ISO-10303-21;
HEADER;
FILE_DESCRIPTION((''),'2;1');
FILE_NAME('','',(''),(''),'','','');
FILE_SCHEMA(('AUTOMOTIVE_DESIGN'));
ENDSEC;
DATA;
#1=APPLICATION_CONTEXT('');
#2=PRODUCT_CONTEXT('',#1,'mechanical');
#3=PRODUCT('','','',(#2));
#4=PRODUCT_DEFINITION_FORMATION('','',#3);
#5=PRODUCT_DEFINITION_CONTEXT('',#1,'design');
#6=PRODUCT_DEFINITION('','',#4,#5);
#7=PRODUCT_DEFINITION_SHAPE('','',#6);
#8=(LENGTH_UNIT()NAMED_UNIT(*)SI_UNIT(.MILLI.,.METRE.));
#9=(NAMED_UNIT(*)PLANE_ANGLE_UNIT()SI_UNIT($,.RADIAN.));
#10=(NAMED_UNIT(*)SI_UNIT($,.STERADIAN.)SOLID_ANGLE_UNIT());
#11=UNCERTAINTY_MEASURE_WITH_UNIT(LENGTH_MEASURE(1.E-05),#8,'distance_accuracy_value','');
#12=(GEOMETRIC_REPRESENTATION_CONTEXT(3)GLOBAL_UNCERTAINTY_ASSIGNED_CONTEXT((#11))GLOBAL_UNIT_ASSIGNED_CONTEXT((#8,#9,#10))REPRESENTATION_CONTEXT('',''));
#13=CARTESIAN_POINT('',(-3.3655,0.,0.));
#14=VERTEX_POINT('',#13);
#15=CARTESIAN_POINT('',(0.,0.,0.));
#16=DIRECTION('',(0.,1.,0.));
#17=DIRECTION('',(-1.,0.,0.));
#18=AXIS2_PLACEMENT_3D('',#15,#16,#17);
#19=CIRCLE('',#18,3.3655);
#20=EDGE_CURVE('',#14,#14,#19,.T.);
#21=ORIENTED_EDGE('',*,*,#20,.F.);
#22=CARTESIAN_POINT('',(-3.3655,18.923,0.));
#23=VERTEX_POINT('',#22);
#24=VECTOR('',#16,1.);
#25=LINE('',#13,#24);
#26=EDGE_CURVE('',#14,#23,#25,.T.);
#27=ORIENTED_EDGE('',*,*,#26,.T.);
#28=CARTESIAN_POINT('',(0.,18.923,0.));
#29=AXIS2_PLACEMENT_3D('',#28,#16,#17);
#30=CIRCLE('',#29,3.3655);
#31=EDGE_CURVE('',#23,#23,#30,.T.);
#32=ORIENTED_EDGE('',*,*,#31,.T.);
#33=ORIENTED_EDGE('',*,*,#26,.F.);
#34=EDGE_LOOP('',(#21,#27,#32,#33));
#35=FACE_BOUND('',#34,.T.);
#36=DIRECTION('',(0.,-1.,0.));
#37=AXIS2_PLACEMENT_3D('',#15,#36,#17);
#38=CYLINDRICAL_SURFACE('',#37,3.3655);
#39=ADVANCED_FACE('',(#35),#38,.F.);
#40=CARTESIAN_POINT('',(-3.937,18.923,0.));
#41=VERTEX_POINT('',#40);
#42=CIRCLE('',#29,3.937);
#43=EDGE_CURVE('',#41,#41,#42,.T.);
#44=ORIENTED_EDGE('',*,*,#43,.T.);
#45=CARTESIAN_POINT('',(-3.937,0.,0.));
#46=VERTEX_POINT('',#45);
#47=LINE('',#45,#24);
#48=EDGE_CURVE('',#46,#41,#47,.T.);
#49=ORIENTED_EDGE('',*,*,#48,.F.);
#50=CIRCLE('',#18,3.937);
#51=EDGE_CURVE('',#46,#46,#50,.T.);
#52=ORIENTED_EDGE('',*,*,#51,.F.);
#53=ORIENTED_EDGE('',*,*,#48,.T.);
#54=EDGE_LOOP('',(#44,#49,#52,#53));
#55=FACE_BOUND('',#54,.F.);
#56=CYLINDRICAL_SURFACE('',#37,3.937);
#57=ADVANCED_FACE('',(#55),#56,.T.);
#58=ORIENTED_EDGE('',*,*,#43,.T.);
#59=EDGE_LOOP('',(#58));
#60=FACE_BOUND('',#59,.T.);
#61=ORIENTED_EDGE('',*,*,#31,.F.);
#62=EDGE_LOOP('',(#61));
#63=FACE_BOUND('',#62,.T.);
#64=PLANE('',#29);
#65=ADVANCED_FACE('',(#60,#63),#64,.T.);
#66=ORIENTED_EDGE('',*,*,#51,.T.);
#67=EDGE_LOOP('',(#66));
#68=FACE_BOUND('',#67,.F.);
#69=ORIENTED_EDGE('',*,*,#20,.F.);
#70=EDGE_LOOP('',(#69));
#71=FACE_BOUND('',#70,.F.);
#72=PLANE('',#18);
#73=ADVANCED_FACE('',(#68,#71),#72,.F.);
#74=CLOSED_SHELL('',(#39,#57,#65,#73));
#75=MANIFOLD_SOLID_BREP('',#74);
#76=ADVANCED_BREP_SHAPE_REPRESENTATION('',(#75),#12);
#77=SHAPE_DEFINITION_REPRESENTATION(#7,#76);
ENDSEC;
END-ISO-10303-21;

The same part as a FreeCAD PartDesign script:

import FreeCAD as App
import Part
import Sketcher
from FreeCAD import Vector
Q = App.Units.Quantity

doc = App.newDocument("Part")
body = doc.addObject("PartDesign::Body", "Body")

# Sketch on XZ plane
sketch1 = body.newObject("Sketcher::SketchObject", "Sketch")
sketch1.AttachmentSupport = (doc.getObject("XZ_Plane"), [""])
sketch1.MapMode = "FlatFace"
sketch1.addGeometry(Part.Circle(Vector(0, 0, 0), Vector(0, 0, 1), 3.9), False)
sketch1.addGeometry(Part.Circle(Vector(0, 0, 0), Vector(0, 0, 1), 3.4), False)
sketch1.addConstraint(Sketcher.Constraint("Coincident", 0, 3, -1, 1))
sketch1.addConstraint(Sketcher.Constraint("Coincident", 1, 3, -1, 1))
sketch1.addConstraint(Sketcher.Constraint("Diameter", 0, Q("0.31 in")))
sketch1.addConstraint(Sketcher.Constraint("Diameter", 1, Q("0.265 in")))
pad1 = body.newObject("PartDesign::Pad", "Pad")
pad1.Profile = sketch1
pad1.Length = Q("0.745 in")
pad1.Reversed = True

doc.recompute()
